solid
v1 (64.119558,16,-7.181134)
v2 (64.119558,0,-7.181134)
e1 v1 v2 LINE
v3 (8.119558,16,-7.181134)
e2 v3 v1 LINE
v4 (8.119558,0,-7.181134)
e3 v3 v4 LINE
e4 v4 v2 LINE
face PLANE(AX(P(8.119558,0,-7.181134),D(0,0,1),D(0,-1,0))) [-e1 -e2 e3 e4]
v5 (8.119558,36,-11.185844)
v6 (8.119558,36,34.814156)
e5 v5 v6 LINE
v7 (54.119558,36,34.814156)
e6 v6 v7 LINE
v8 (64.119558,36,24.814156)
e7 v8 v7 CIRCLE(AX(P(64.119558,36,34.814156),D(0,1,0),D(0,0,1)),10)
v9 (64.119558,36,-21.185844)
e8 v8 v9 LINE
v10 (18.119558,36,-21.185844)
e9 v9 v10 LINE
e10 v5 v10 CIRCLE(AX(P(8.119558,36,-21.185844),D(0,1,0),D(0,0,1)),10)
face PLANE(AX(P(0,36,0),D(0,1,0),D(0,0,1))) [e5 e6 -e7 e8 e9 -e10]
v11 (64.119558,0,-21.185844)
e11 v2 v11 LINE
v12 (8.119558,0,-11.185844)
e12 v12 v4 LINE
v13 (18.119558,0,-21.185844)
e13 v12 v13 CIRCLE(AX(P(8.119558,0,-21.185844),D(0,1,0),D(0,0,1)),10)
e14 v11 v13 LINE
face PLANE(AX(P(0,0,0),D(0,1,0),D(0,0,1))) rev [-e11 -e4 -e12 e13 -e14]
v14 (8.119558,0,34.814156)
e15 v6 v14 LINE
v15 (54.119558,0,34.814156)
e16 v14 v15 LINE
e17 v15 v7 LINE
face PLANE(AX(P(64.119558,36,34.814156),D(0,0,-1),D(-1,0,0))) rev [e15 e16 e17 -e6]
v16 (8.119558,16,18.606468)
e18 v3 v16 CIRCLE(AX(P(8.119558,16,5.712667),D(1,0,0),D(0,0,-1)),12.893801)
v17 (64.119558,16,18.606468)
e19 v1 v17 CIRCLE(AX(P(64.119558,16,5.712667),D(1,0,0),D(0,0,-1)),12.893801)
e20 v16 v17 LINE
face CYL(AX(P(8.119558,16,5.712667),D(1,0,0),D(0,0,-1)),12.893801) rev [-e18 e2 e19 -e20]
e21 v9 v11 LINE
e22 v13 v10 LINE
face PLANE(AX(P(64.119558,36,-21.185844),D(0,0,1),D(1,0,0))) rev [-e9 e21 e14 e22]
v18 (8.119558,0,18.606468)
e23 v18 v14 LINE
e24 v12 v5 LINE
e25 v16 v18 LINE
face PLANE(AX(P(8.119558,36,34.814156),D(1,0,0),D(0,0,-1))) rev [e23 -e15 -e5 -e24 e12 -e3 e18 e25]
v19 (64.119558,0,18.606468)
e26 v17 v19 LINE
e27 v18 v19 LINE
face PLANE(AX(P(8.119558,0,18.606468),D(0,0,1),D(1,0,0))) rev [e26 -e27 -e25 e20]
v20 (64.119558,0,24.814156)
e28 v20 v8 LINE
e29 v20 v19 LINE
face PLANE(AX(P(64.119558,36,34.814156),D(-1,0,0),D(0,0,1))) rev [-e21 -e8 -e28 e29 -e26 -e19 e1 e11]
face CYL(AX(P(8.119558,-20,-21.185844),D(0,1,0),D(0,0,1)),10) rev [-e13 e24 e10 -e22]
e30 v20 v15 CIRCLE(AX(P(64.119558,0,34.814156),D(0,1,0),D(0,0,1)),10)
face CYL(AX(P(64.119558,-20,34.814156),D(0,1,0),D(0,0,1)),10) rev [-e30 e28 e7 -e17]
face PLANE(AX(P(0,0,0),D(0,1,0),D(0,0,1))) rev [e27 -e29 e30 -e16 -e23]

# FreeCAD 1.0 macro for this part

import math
import FreeCAD as App
import Part
import Sketcher

doc = App.newDocument("Part")
params = doc.addObject("Spreadsheet::Sheet", "Params")
for row, (alias, value) in enumerate([
    ("sketch1_width", "56 mm"),
    ("pad1_length", "36 mm"),
    ("sketch2_width", "16 mm"),
    ("pocket1_length", "56 mm"),
    ("sketch3_radius", "10 mm"),
    ("pocket2_length", "56 mm"),
], start=1):
    params.set(f"A{row}", alias)
    params.set(f"B{row}", "=" + value)
    params.setAlias(f"B{row}", alias)

body = doc.addObject("PartDesign::Body", "Body")

sketch1 = doc.addObject("Sketcher::SketchObject", "Sketch")
body.addObject(sketch1)
sketch1.AttachmentSupport = (doc.XZ_Plane, [""])
sketch1.MapMode = "FlatFace"
sketch1.addGeometry([
    Part.LineSegment(App.Vector(8.119558, -21.185844, 0), App.Vector(8.119558, 34.814156, 0)),
    Part.LineSegment(App.Vector(8.119558, 34.814156, 0), App.Vector(64.119558, 34.814156, 0)),
    Part.LineSegment(App.Vector(64.119558, 34.814156, 0), App.Vector(64.119558, -21.185844, 0)),
    Part.LineSegment(App.Vector(64.119558, -21.185844, 0), App.Vector(8.119558, -21.185844, 0)),
], False)
sketch1.addConstraint([
    Sketcher.Constraint("Coincident", 0, 2, 1, 1),
    Sketcher.Constraint("Coincident", 1, 2, 2, 1),
    Sketcher.Constraint("Coincident", 2, 2, 3, 1),
    Sketcher.Constraint("Coincident", 3, 2, 0, 1),
    Sketcher.Constraint("Vertical", 0),
    Sketcher.Constraint("Horizontal", 1),
    Sketcher.Constraint("Vertical", 2),
    Sketcher.Constraint("Horizontal", 3),
    Sketcher.Constraint("Equal", 3, 0),
    Sketcher.Constraint("DistanceX", 1, 1, 1, 2, 56.0),
    Sketcher.Constraint("DistanceX", -1, 1, 0, 2, 8.119558),
    Sketcher.Constraint("DistanceY", -1, 1, 0, 2, 34.814156),
])
sketch1.setExpression("Constraints[9]", "Params.sketch1_width")
pad1 = doc.addObject("PartDesign::Pad", "Pad")
body.addObject(pad1)
pad1.Profile = sketch1
pad1.setExpression("Length", "Params.pad1_length")
pad1.Reversed = True

sketch2 = doc.addObject("Sketcher::SketchObject", "Sketch001")
body.addObject(sketch2)
sketch2.AttachmentSupport = (doc.YZ_Plane, [""])
sketch2.MapMode = "FlatFace"
sketch2.AttachmentOffset = App.Placement(App.Vector(0, 0, 64.119558), App.Rotation())
sketch2.addGeometry([
    Part.ArcOfCircle(Part.Circle(App.Vector(16, 5.712667, 0), App.Vector(0, 0, 1), 12.893801), math.radians(-90), math.radians(90)),
    Part.LineSegment(App.Vector(16, 18.606468, 0), App.Vector(0, 18.606468, 0)),
    Part.LineSegment(App.Vector(0, 18.606468, 0), App.Vector(0, -7.181134, 0)),
    Part.LineSegment(App.Vector(0, -7.181134, 0), App.Vector(16, -7.181134, 0)),
], False)
sketch2.addConstraint([
    Sketcher.Constraint("Tangent", 0, 2, 1, 1),
    Sketcher.Constraint("Coincident", 1, 2, 2, 1),
    Sketcher.Constraint("Coincident", 2, 2, 3, 1),
    Sketcher.Constraint("Tangent", 3, 2, 0, 1),
    Sketcher.Constraint("Horizontal", 1),
    Sketcher.Constraint("Vertical", 2),
    Sketcher.Constraint("Horizontal", 3),
    Sketcher.Constraint("PointOnObject", 1, 2, -2),
    Sketcher.Constraint("DistanceX", 1, 2, 1, 1, 16.0),
    Sketcher.Constraint("Radius", 0, 12.893801),
    Sketcher.Constraint("DistanceY", -1, 1, 0, 3, 5.712667),
])
sketch2.setExpression("Constraints[8]", "Params.sketch2_width")
pocket1 = doc.addObject("PartDesign::Pocket", "Pocket")
body.addObject(pocket1)
pocket1.Profile = sketch2
pocket1.setExpression("Length", "Params.pocket1_length")

sketch3 = doc.addObject("Sketcher::SketchObject", "Sketch002")
body.addObject(sketch3)
sketch3.AttachmentSupport = (doc.XZ_Plane, [""])
sketch3.MapMode = "FlatFace"
sketch3.AttachmentOffset = App.Placement(App.Vector(0, 0, -36), App.Rotation())
sketch3.addGeometry([
    Part.ArcOfCircle(Part.Circle(App.Vector(64.119558, 34.814156, 0), App.Vector(0, 0, 1), 10), math.radians(0), math.radians(180)),
    Part.ArcOfCircle(Part.Circle(App.Vector(64.119558, 34.814156, 0), App.Vector(0, 0, 1), 10), math.radians(-90), math.radians(0)),
    Part.ArcOfCircle(Part.Circle(App.Vector(64.119558, 34.814156, 0), App.Vector(0, 0, 1), 10), math.radians(-180), math.radians(-90)),
    Part.ArcOfCircle(Part.Circle(App.Vector(8.119558, -21.185844, 0), App.Vector(0, 0, 1), 10), math.radians(90), math.radians(360)),
    Part.ArcOfCircle(Part.Circle(App.Vector(8.119558, -21.185844, 0), App.Vector(0, 0, 1), 10), math.radians(0), math.radians(90)),
], False)
sketch3.addConstraint([
    Sketcher.Constraint("Tangent", 0, 1, 1, 2),
    Sketcher.Constraint("Tangent", 1, 1, 2, 2),
    Sketcher.Constraint("Tangent", 2, 1, 0, 2),
    Sketcher.Constraint("Tangent", 3, 1, 4, 2),
    Sketcher.Constraint("Coincident", 4, 1, 3, 2),
    Sketcher.Constraint("Equal", 2, 3),
    Sketcher.Constraint("Horizontal", 2, 3, 0, 1),
    Sketcher.Constraint("Horizontal", 0, 1, 2, 1),
    Sketcher.Constraint("Horizontal", 3, 3, 4, 1),
    Sketcher.Constraint("Vertical", 2, 3, 1, 1),
    Sketcher.Constraint("Vertical", 4, 3, 3, 1),
    Sketcher.Constraint("Radius", 0, 10.0),
    Sketcher.Constraint("DistanceX", 3, 3, 0, 3, 56.0),
    Sketcher.Constraint("DistanceY", 3, 3, 0, 3, 56.0),
    Sketcher.Constraint("DistanceX", -1, 1, 0, 3, 64.119558),
    Sketcher.Constraint("DistanceY", -1, 1, 0, 3, 34.814156),
])
sketch3.setExpression("Constraints[11]", "Params.sketch3_radius")
pocket2 = doc.addObject("PartDesign::Pocket", "Pocket001")
body.addObject(pocket2)
pocket2.Profile = sketch3
pocket2.setExpression("Length", "Params.pocket2_length")
pocket2.Reversed = True

doc.recompute()
